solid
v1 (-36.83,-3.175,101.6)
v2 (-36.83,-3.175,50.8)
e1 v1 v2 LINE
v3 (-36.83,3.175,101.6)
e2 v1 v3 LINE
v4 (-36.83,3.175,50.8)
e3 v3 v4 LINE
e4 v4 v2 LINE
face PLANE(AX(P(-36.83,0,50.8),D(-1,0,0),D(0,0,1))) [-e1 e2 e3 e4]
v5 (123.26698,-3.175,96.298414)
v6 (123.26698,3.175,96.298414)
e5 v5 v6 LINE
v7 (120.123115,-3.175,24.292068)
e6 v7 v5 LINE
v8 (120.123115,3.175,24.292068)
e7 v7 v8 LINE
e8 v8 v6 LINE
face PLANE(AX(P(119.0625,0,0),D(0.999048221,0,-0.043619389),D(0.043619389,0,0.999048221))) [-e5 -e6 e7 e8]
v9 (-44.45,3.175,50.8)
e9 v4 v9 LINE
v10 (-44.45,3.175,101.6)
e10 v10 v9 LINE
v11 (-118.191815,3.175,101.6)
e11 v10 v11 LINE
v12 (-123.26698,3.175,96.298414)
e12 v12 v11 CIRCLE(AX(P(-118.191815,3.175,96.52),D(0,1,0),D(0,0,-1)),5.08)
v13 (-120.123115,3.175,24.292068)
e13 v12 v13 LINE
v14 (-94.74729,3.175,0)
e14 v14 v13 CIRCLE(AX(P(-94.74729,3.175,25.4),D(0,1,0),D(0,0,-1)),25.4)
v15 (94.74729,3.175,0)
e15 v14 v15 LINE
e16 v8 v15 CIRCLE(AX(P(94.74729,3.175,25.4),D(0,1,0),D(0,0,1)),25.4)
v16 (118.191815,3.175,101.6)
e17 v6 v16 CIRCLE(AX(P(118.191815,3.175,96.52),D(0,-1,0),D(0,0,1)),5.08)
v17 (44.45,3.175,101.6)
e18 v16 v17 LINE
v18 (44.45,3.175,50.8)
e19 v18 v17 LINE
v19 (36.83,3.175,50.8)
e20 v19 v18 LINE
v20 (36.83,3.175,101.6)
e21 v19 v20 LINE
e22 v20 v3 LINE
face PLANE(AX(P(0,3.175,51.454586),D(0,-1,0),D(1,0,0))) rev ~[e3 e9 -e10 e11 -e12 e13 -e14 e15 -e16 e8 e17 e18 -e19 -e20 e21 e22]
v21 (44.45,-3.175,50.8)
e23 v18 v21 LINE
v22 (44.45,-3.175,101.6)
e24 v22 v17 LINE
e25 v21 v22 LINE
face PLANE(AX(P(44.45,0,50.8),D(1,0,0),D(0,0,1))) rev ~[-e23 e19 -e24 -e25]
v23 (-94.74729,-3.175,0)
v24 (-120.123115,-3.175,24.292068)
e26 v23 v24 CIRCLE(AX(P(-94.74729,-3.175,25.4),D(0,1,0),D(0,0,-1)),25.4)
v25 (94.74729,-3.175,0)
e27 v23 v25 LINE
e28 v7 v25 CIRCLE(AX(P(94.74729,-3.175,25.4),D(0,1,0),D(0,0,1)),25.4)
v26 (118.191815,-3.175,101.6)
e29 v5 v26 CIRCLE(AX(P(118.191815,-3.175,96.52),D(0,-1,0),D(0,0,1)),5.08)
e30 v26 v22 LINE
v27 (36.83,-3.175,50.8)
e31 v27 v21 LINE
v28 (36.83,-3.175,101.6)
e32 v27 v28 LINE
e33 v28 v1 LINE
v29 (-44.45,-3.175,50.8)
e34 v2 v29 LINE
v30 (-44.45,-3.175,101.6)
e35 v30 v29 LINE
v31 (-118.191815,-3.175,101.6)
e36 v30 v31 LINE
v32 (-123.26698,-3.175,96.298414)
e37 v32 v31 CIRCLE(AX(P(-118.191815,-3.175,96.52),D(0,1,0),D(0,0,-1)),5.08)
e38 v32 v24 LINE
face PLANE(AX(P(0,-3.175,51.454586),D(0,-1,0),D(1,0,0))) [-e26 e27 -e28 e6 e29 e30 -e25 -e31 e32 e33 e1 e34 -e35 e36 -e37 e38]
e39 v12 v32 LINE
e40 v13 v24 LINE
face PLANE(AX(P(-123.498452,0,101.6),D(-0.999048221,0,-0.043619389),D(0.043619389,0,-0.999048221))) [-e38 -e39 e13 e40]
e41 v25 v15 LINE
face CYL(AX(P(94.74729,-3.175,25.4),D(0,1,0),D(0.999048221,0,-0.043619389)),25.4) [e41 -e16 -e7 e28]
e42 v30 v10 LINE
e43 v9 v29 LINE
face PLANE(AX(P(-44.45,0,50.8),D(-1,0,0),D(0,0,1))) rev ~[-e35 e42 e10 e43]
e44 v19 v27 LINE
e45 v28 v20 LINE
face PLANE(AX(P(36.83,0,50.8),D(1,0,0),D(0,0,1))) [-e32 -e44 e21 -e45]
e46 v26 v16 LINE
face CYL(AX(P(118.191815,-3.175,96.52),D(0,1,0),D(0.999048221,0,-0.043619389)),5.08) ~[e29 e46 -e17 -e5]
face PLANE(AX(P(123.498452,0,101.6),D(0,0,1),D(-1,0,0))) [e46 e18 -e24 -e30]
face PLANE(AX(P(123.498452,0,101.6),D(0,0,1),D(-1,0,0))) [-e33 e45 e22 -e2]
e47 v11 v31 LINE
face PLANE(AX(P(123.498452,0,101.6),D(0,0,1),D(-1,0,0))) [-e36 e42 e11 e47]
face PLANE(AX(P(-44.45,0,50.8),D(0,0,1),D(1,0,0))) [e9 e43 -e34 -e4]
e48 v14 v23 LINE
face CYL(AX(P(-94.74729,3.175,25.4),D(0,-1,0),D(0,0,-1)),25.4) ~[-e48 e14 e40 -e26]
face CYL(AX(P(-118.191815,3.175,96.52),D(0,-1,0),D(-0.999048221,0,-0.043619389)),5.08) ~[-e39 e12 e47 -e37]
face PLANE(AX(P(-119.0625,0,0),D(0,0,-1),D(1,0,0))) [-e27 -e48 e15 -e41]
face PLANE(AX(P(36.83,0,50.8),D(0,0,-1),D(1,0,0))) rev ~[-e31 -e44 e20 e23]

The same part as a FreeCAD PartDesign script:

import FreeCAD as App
import Part
import Sketcher
from FreeCAD import Vector
Q = App.Units.Quantity


def edges_at(feature, points):
    """Names of the edges that pass closest to the given points."""
    edges = feature.Shape.Edges
    near = lambda p: min(range(len(edges)), key=lambda i: edges[i].distToShape(Part.Vertex(*p))[0])
    return sorted({f"Edge{near(p) + 1}" for p in points})

doc = App.newDocument("Part")
body = doc.addObject("PartDesign::Body", "Body")

sketch1 = body.newObject("Sketcher::SketchObject", "Sketch")
sketch1.AttachmentSupport = (doc.getObject("XZ_Plane"), [""])
sketch1.MapMode = "FlatFace"
sketch1.addGeometry([
    Part.LineSegment(Vector(123, 102, 0), Vector(-123, 102, 0)),
    Part.LineSegment(Vector(-123, 102, 0), Vector(-119, 0, 0)),
    Part.LineSegment(Vector(-119, 0, 0), Vector(119, 0, 0)),
    Part.LineSegment(Vector(119, 0, 0), Vector(123, 102, 0)),
], False)
sketch1.addConstraint([
    Sketcher.Constraint("Coincident", 0, 2, 1, 1),
    Sketcher.Constraint("Coincident", 1, 2, 2, 1),
    Sketcher.Constraint("Coincident", 2, 2, 3, 1),
    Sketcher.Constraint("Coincident", 3, 2, 0, 1),
    Sketcher.Constraint("Horizontal", 0),
    Sketcher.Constraint("Horizontal", 2),
    Sketcher.Constraint("Symmetric", 1, 2, 2, 2, -1, 1),
    Sketcher.Constraint("Equal", 1, 3),
    Sketcher.Constraint("DistanceY", -1, 1, 0, 2, Q("4 in")),
    Sketcher.Constraint("Angle", 1, Q("-87.5 deg")),
    Sketcher.Constraint("DistanceX", 2, 1, 2, 2, Q("9.375 in")),
])
pad1 = body.newObject("PartDesign::Pad", "Pad")
pad1.Profile = sketch1
pad1.Length = Q("0.25 in")
pad1.Midplane = True

sketch2 = body.newObject("Sketcher::SketchObject", "Sketch001")
sketch2.AttachmentSupport = (doc.getObject("XZ_Plane"), [""])
sketch2.MapMode = "FlatFace"
sketch2.addGeometry([
    Part.LineSegment(Vector(-44, 102, 0), Vector(-44, 51, 0)),
    Part.LineSegment(Vector(-44, 51, 0), Vector(-37, 51, 0)),
    Part.LineSegment(Vector(-37, 51, 0), Vector(-37, 102, 0)),
    Part.LineSegment(Vector(-37, 102, 0), Vector(-44, 102, 0)),
    Part.LineSegment(Vector(37, 102, 0), Vector(37, 51, 0)),
    Part.LineSegment(Vector(37, 51, 0), Vector(44, 51, 0)),
    Part.LineSegment(Vector(44, 51, 0), Vector(44, 102, 0)),
    Part.LineSegment(Vector(44, 102, 0), Vector(37, 102, 0)),
], False)
sketch2.addConstraint([
    Sketcher.Constraint("Coincident", 0, 2, 1, 1),
    Sketcher.Constraint("Coincident", 1, 2, 2, 1),
    Sketcher.Constraint("Coincident", 2, 2, 3, 1),
    Sketcher.Constraint("Coincident", 3, 2, 0, 1),
    Sketcher.Constraint("Coincident", 4, 2, 5, 1),
    Sketcher.Constraint("Coincident", 5, 2, 6, 1),
    Sketcher.Constraint("Coincident", 6, 2, 7, 1),
    Sketcher.Constraint("Coincident", 7, 2, 4, 1),
    Sketcher.Constraint("Vertical", 0),
    Sketcher.Constraint("Horizontal", 1),
    Sketcher.Constraint("Vertical", 2),
    Sketcher.Constraint("Horizontal", 3),
    Sketcher.Constraint("Vertical", 4),
    Sketcher.Constraint("Horizontal", 5),
    Sketcher.Constraint("Vertical", 6),
    Sketcher.Constraint("Horizontal", 7),
    Sketcher.Constraint("Symmetric", 1, 2, 4, 2, -2),
    Sketcher.Constraint("Symmetric", 3, 2, 6, 2, -2),
    Sketcher.Constraint("DistanceY", 0, 2, 0, 1, Q("2 in")),
    Sketcher.Constraint("DistanceX", 1, 1, 1, 2, Q("0.3 in")),
    Sketcher.Constraint("DistanceY", -1, 1, 0, 2, Q("2 in")),
    Sketcher.Constraint("DistanceX", 1, 2, 4, 2, Q("2.9 in")),
])
pocket1 = body.newObject("PartDesign::Pocket", "Pocket")
pocket1.Profile = sketch2
pocket1.Length = Q("1 in")
pocket1.Midplane = True
doc.recompute()

fillet = body.newObject("PartDesign::Fillet", "Fillet")
fillet.Base = (pocket1, edges_at(pocket1, [(-119.062, 0, 0), (119.062, 0, 0)]))
fillet.Radius = Q("1 in")
doc.recompute()

fillet2 = body.newObject("PartDesign::Fillet", "Fillet001")
fillet2.Base = (fillet, edges_at(fillet, [(-123.498, 0, 101.6), (123.498, 0, 101.6)]))
fillet2.Radius = Q("0.2 in")

doc.recompute()
